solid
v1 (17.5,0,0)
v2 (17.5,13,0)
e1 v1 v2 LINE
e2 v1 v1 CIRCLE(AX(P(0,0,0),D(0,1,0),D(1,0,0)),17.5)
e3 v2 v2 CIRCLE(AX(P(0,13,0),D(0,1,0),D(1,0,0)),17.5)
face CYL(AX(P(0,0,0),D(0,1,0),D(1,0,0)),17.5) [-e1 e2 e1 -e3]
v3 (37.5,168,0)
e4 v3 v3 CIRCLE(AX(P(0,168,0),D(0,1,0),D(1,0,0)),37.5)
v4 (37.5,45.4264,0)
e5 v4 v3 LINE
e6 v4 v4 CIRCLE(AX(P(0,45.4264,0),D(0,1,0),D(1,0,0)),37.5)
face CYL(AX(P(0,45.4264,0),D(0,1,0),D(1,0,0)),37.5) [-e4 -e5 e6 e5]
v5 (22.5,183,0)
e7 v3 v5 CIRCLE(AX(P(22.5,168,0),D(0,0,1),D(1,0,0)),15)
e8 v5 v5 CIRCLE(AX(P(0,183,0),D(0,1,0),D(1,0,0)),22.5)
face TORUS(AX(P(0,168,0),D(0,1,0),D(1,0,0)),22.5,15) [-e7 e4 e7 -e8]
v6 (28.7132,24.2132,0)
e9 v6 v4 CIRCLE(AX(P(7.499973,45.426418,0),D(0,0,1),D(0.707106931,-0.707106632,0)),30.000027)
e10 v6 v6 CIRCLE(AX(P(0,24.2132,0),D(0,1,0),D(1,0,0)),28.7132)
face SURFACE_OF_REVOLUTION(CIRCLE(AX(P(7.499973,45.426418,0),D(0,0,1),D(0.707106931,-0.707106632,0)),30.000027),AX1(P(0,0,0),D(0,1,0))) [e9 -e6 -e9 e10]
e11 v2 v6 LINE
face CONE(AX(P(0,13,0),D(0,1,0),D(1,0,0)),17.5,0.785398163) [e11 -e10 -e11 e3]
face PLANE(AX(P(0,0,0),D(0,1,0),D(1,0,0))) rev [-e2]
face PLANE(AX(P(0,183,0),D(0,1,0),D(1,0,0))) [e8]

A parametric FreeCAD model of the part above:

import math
import FreeCAD as App
import Part
import Sketcher
from FreeCAD import Vector
Q = App.Units.Quantity

doc = App.newDocument("Part")
body = doc.addObject("PartDesign::Body", "Body")

sketch1 = doc.addObject("Sketcher::SketchObject", "Sketch")
body.addObject(sketch1)
sketch1.AttachmentSupport = (doc.XY_Plane, [""])
sketch1.MapMode = "FlatFace"
sketch1.addGeometry(Part.LineSegment(Vector(0, 183, 0), Vector(0, 0, 0)), False)
sketch1.addGeometry(Part.LineSegment(Vector(0, 0, 0), Vector(17.5, 0, 0)), False)
sketch1.addGeometry(Part.LineSegment(Vector(17.5, 0, 0), Vector(17.5, 13, 0)), False)
sketch1.addGeometry(Part.LineSegment(Vector(17.5, 13, 0), Vector(28.7132, 24.2132, 0)), False)
sketch1.addGeometry(Part.ArcOfCircle(Part.Circle(Vector(7.5, 45.4264, 0), Vector(0, 0, 1), 29.999995), math.radians(-45), math.radians(0)), False)
sketch1.addGeometry(Part.LineSegment(Vector(37.5, 45.4264, 0), Vector(37.5, 168, 0)), False)
sketch1.addGeometry(Part.ArcOfCircle(Part.Circle(Vector(22.5, 168, 0), Vector(0, 0, 1), 15), math.radians(0), math.radians(90)), False)
sketch1.addGeometry(Part.LineSegment(Vector(22.5, 183, 0), Vector(0, 183, 0)), False)
sketch1.addConstraint(Sketcher.Constraint("Coincident", 0, 2, 1, 1))
sketch1.addConstraint(Sketcher.Constraint("Coincident", 1, 2, 2, 1))
sketch1.addConstraint(Sketcher.Constraint("Coincident", 2, 2, 3, 1))
sketch1.addConstraint(Sketcher.Constraint("Tangent", 3, 2, 4, 1))
sketch1.addConstraint(Sketcher.Constraint("Tangent", 4, 2, 5, 1))
sketch1.addConstraint(Sketcher.Constraint("Tangent", 5, 2, 6, 1))
sketch1.addConstraint(Sketcher.Constraint("Tangent", 6, 2, 7, 1))
sketch1.addConstraint(Sketcher.Constraint("Coincident", 7, 2, 0, 1))
sketch1.addConstraint(Sketcher.Constraint("Vertical", 0))
sketch1.addConstraint(Sketcher.Constraint("Horizontal", 1))
sketch1.addConstraint(Sketcher.Constraint("Vertical", 2))
sketch1.addConstraint(Sketcher.Constraint("Vertical", 5))
sketch1.addConstraint(Sketcher.Constraint("Horizontal", 7))
sketch1.addConstraint(Sketcher.Constraint("Coincident", 0, 2, -1, 1))
sketch1.addConstraint(Sketcher.Constraint("Radius", 4, Q("30 mm")))
sketch1.addConstraint(Sketcher.Constraint("Radius", 6, Q("15 mm")))
sketch1.addConstraint(Sketcher.Constraint("DistanceY", 2, 1, 2, 2, Q("13 mm")))
sketch1.addConstraint(Sketcher.Constraint("Angle", 3, Q("45 deg")))
sketch1.addConstraint(Sketcher.Constraint("DistanceY", 0, 2, 0, 1, Q("183 mm")))
sketch1.addConstraint(Sketcher.Constraint("DistanceX", 1, 1, 1, 2, Q("17.5 mm")))
sketch1.addConstraint(Sketcher.Constraint("DistanceX", 7, 2, 7, 1, Q("22.5 mm")))
revolution = doc.addObject("PartDesign::Revolution", "Revolution")
body.addObject(revolution)
revolution.Profile = sketch1
revolution.ReferenceAxis = (sketch1, ["V_Axis"])
revolution.Angle = 360

doc.recompute()
